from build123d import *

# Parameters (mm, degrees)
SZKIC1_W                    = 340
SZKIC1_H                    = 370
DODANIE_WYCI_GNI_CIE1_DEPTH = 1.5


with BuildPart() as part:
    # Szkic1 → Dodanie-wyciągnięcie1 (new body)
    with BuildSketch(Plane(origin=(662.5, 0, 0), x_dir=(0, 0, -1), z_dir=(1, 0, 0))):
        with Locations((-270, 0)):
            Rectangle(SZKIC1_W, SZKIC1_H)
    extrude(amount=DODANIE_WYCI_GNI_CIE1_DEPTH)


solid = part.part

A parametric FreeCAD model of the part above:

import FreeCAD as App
import Part
import Sketcher
Q = App.Units.Quantity


def add_polygon(sketch, points):
    """Adds a closed chain of lines whose ends are joined by coincident constraints."""
    first, n = sketch.GeometryCount, len(points)
    for a, b in zip(points, points[1:] + points[:1]):
        sketch.addGeometry(Part.LineSegment(App.Vector(*a, 0), App.Vector(*b, 0)), False)
    for i in range(n):
        sketch.addConstraint(Sketcher.Constraint("Coincident", first + i, 2, first + (i + 1) % n, 1))

doc = App.newDocument("Part")
params = doc.addObject("Spreadsheet::Sheet", "Params")
for row, (alias, value) in enumerate([
    ("sketch1_width", "370 mm"),
    ("sketch1_height", "340 mm"),
    ("pad1_length", "1.5 mm"),
], start=1):
    params.set(f"A{row}", alias)
    params.set(f"B{row}", "=" + value)
    params.setAlias(f"B{row}", alias)

body = doc.addObject("PartDesign::Body", "Body")

# Sketch on YZ plane
sketch1 = body.newObject("Sketcher::SketchObject", "Sketch")
sketch1.AttachmentSupport = (doc.getObject("YZ_Plane"), [""])
sketch1.MapMode = "FlatFace"
sketch1.AttachmentOffset = App.Placement(App.Vector(0, 0, 662.5), App.Rotation())
add_polygon(sketch1, [(185, 440), (-185, 440), (-185, 100), (185, 100)])  # lines 0-3
sketch1.addConstraint(Sketcher.Constraint("Horizontal", 0))
sketch1.addConstraint(Sketcher.Constraint("Vertical", 1))
sketch1.addConstraint(Sketcher.Constraint("Horizontal", 2))
sketch1.addConstraint(Sketcher.Constraint("Vertical", 3))
sketch1.addConstraint(Sketcher.Constraint("DistanceX", 0, 2, 0, 1, Q("370 mm")))
sketch1.addConstraint(Sketcher.Constraint("DistanceY", 1, 2, 1, 1, Q("340 mm")))
sketch1.addConstraint(Sketcher.Constraint("DistanceX", 0, 2, -1, 1, Q("185 mm")))
sketch1.addConstraint(Sketcher.Constraint("DistanceY", -1, 1, 0, 2, Q("440 mm")))
sketch1.setExpression("Constraints[8]", "Params.sketch1_width")
sketch1.setExpression("Constraints[9]", "Params.sketch1_height")
pad1 = body.newObject("PartDesign::Pad", "Pad")
pad1.Profile = sketch1
pad1.setExpression("Length", "Params.pad1_length")

doc.recompute()
